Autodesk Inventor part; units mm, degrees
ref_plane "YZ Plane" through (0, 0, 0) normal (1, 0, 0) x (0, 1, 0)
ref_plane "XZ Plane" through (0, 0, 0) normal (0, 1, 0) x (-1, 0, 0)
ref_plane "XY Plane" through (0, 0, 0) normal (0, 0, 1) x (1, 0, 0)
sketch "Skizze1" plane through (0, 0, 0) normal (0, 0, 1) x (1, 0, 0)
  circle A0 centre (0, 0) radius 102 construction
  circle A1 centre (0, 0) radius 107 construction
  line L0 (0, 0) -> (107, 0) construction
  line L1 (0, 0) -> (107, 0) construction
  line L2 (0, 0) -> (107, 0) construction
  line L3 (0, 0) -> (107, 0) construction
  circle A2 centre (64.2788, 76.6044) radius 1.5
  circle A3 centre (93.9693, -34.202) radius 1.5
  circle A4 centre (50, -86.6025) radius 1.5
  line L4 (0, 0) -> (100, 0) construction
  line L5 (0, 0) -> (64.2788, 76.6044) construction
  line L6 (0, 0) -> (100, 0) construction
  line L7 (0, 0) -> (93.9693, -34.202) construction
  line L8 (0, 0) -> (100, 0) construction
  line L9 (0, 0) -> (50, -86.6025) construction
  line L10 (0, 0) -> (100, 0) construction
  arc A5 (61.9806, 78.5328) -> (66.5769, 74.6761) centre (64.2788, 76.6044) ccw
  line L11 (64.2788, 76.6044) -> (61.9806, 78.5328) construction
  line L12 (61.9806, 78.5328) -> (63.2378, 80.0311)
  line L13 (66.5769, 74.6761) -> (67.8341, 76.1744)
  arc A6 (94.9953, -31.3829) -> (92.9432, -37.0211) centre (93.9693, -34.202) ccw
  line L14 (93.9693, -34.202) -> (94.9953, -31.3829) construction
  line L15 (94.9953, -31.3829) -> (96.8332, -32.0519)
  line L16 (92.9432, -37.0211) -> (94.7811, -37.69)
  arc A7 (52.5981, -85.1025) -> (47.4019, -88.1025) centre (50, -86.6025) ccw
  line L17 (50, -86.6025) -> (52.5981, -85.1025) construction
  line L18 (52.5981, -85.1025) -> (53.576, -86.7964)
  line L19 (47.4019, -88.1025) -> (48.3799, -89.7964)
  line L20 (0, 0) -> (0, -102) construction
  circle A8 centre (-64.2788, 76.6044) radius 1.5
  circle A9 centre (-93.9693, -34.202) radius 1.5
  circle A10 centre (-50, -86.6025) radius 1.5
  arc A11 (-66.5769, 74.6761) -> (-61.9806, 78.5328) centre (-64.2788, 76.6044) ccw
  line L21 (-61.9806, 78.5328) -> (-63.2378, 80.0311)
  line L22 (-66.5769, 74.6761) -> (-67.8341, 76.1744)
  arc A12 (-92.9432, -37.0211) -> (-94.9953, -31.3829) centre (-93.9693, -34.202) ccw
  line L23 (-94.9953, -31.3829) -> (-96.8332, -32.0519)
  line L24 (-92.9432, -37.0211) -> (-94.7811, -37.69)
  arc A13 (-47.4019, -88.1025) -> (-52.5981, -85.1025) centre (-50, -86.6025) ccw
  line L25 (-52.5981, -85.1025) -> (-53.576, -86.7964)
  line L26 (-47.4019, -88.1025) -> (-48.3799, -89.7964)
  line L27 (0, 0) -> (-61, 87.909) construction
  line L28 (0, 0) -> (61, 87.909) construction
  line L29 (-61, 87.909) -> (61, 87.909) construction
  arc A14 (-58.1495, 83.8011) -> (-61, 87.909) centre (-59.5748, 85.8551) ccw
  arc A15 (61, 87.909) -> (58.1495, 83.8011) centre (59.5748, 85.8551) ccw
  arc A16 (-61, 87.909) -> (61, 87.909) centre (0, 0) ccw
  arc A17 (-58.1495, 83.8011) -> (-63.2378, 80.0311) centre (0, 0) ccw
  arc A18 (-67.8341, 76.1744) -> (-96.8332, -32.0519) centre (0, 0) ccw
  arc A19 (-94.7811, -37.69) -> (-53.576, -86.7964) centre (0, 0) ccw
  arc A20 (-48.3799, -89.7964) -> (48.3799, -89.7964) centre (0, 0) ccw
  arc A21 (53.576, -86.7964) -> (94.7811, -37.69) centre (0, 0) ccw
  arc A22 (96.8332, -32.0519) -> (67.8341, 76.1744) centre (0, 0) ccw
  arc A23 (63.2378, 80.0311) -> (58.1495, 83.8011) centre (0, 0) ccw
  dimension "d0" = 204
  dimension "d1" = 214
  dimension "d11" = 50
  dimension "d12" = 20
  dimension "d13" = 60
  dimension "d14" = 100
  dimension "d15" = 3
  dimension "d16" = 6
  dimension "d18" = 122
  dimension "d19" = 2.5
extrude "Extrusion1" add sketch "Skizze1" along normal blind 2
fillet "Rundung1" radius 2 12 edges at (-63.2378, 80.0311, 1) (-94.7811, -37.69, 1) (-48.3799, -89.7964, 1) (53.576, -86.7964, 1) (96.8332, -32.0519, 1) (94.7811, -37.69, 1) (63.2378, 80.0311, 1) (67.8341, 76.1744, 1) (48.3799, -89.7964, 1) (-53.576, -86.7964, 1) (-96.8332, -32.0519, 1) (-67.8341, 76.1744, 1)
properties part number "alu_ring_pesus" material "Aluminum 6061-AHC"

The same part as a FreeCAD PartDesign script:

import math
import FreeCAD as App
import Part
import Sketcher
Q = App.Units.Quantity


def edges_at(feature, points):
    """Names of the edges that pass closest to the given points."""
    edges = feature.Shape.Edges
    near = lambda p: min(range(len(edges)), key=lambda i: edges[i].distToShape(Part.Vertex(*p))[0])
    return sorted({f"Edge{near(p) + 1}" for p in points})

doc = App.newDocument("Part")
params = doc.addObject("Spreadsheet::Sheet", "Params")
for row, (alias, value) in enumerate([
    ("sketch1_diameter", "3 mm"),
    ("sketch1_radius", "3 mm"),
    ("sketch1_radius2", "102 mm"),
    ("sketch1_radius3", "107 mm"),
    ("sketch1_radius4", "2.5 mm"),
    ("pad1_length", "2 mm"),
    ("fillet_radius", "2 mm"),
], start=1):
    params.set(f"A{row}", alias)
    params.set(f"B{row}", "=" + value)
    params.setAlias(f"B{row}", alias)

body = doc.addObject("PartDesign::Body", "Body")

# Sketch on XY plane
sketch1 = body.newObject("Sketcher::SketchObject", "Sketch")
sketch1.AttachmentSupport = (doc.getObject("XY_Plane"), [""])
sketch1.MapMode = "FlatFace"
sketch1.addGeometry([
    Part.LineSegment(App.Vector(63.2, 80, 0), App.Vector(62, 78.5, 0)),  # 0
    Part.ArcOfCircle(Part.Circle(App.Vector(64.3, 76.6, 0), App.Vector(0, 0, 1), 3), math.radians(140), math.radians(320)),  # 1
    Part.LineSegment(App.Vector(66.6, 74.7, 0), App.Vector(67.8, 76.2, 0)),  # 2
    Part.ArcOfCircle(Part.Circle(App.Vector(0, 0, 0), App.Vector(0, 0, 1), 102), math.radians(-18), math.radians(48)),  # 3
    Part.LineSegment(App.Vector(96.8, -32.1, 0), App.Vector(95, -31.4, 0)),  # 4
    Part.ArcOfCircle(Part.Circle(App.Vector(94, -34.2, 0), App.Vector(0, 0, 1), 3), math.radians(70), math.radians(250)),  # 5
    Part.LineSegment(App.Vector(92.9, -37, 0), App.Vector(94.8, -37.7, 0)),  # 6
    Part.ArcOfCircle(Part.Circle(App.Vector(0, 0, 0), App.Vector(0, 0, 1), 102), math.radians(-58), math.radians(-22)),  # 7
    Part.LineSegment(App.Vector(53.6, -86.8, 0), App.Vector(52.6, -85.1, 0)),  # 8
    Part.ArcOfCircle(Part.Circle(App.Vector(50, -86.6, 0), App.Vector(0, 0, 1), 3), math.radians(30), math.radians(210)),  # 9
    Part.LineSegment(App.Vector(47.4, -88.1, 0), App.Vector(48.4, -89.8, 0)),  # 10
    Part.ArcOfCircle(Part.Circle(App.Vector(0, 0, 0), App.Vector(0, 0, 1), 102), math.radians(-118), math.radians(-62)),  # 11
    Part.LineSegment(App.Vector(-48.4, -89.8, 0), App.Vector(-47.4, -88.1, 0)),  # 12
    Part.ArcOfCircle(Part.Circle(App.Vector(-50, -86.6, 0), App.Vector(0, 0, 1), 3), math.radians(-30), math.radians(150)),  # 13
    Part.LineSegment(App.Vector(-52.6, -85.1, 0), App.Vector(-53.6, -86.8, 0)),  # 14
    Part.ArcOfCircle(Part.Circle(App.Vector(0, 0, 0), App.Vector(0, 0, 1), 102), math.radians(-158), math.radians(-122)),  # 15
    Part.LineSegment(App.Vector(-94.8, -37.7, 0), App.Vector(-92.9, -37, 0)),  # 16
    Part.ArcOfCircle(Part.Circle(App.Vector(-94, -34.2, 0), App.Vector(0, 0, 1), 3), math.radians(-70), math.radians(110)),  # 17
    Part.LineSegment(App.Vector(-95, -31.4, 0), App.Vector(-96.8, -32.1, 0)),  # 18
    Part.ArcOfCircle(Part.Circle(App.Vector(0, 0, 0), App.Vector(0, 0, 1), 102), math.radians(132), math.radians(198)),  # 19
    Part.LineSegment(App.Vector(-67.8, 76.2, 0), App.Vector(-66.6, 74.7, 0)),  # 20
    Part.ArcOfCircle(Part.Circle(App.Vector(-64.3, 76.6, 0), App.Vector(0, 0, 1), 3), math.radians(-140), math.radians(40)),  # 21
    Part.LineSegment(App.Vector(-62, 78.5, 0), App.Vector(-63.2, 80, 0)),  # 22
    Part.ArcOfCircle(Part.Circle(App.Vector(0, 0, 0), App.Vector(0, 0, 1), 102), math.radians(124.76), math.radians(128.31)),  # 23
    Part.ArcOfCircle(Part.Circle(App.Vector(-59.6, 85.9, 0), App.Vector(0, 0, 1), 2.5), math.radians(-55), math.radians(125)),  # 24
    Part.ArcOfCircle(Part.Circle(App.Vector(0, 0, 0), App.Vector(0, 0, 1), 107), math.radians(125), math.radians(415)),  # 25
    Part.ArcOfCircle(Part.Circle(App.Vector(59.6, 85.9, 0), App.Vector(0, 0, 1), 2.5), math.radians(55), math.radians(235)),  # 26
    Part.ArcOfCircle(Part.Circle(App.Vector(0, 0, 0), App.Vector(0, 0, 1), 102), math.radians(51.69), math.radians(55.24)),  # 27
    Part.Circle(App.Vector(-50, -86.6, 0), App.Vector(0, 0, 1), 1.5),  # 28
    Part.Circle(App.Vector(-94, -34.2, 0), App.Vector(0, 0, 1), 1.5),  # 29
    Part.Circle(App.Vector(50, -86.6, 0), App.Vector(0, 0, 1), 1.5),  # 30
    Part.Circle(App.Vector(94, -34.2, 0), App.Vector(0, 0, 1), 1.5),  # 31
    Part.Circle(App.Vector(-64.3, 76.6, 0), App.Vector(0, 0, 1), 1.5),  # 32
    Part.Circle(App.Vector(64.3, 76.6, 0), App.Vector(0, 0, 1), 1.5),  # 33
], False)
sketch1.addConstraint([
    Sketcher.Constraint("Tangent", 0, 2, 1, 1),
    Sketcher.Constraint("Tangent", 1, 2, 2, 1),
    Sketcher.Constraint("Coincident", 2, 2, 3, 2),
    Sketcher.Constraint("Coincident", 3, 1, 4, 1),
    Sketcher.Constraint("Tangent", 4, 2, 5, 1),
    Sketcher.Constraint("Tangent", 5, 2, 6, 1),
    Sketcher.Constraint("Coincident", 6, 2, 7, 2),
    Sketcher.Constraint("Coincident", 7, 1, 8, 1),
    Sketcher.Constraint("Tangent", 8, 2, 9, 1),
    Sketcher.Constraint("Tangent", 9, 2, 10, 1),
    Sketcher.Constraint("Coincident", 10, 2, 11, 2),
    Sketcher.Constraint("Coincident", 11, 1, 12, 1),
    Sketcher.Constraint("Tangent", 12, 2, 13, 1),
    Sketcher.Constraint("Tangent", 13, 2, 14, 1),
    Sketcher.Constraint("Coincident", 14, 2, 15, 2),
    Sketcher.Constraint("Coincident", 15, 1, 16, 1),
    Sketcher.Constraint("Tangent", 16, 2, 17, 1),
    Sketcher.Constraint("Tangent", 17, 2, 18, 1),
    Sketcher.Constraint("Coincident", 18, 2, 19, 2),
    Sketcher.Constraint("Coincident", 19, 1, 20, 1),
    Sketcher.Constraint("Tangent", 20, 2, 21, 1),
    Sketcher.Constraint("Tangent", 21, 2, 22, 1),
    Sketcher.Constraint("Coincident", 22, 2, 23, 2),
    Sketcher.Constraint("Tangent", 23, 1, 24, 1),
    Sketcher.Constraint("Tangent", 24, 2, 25, 1),
    Sketcher.Constraint("Tangent", 25, 2, 26, 1),
    Sketcher.Constraint("Tangent", 26, 2, 27, 2),
    Sketcher.Constraint("Coincident", 27, 1, 0, 1),
    Sketcher.Constraint("Coincident", 3, 3, -1, 1),
    Sketcher.Constraint("Coincident", 7, 3, -1, 1),
    Sketcher.Constraint("Coincident", 11, 3, -1, 1),
    Sketcher.Constraint("Coincident", 15, 3, -1, 1),
    Sketcher.Constraint("Coincident", 19, 3, -1, 1),
    Sketcher.Constraint("Coincident", 25, 3, -1, 1),
    Sketcher.Constraint("Coincident", 28, 3, 13, 3),
    Sketcher.Constraint("Coincident", 29, 3, 17, 3),
    Sketcher.Constraint("Coincident", 30, 3, 9, 3),
    Sketcher.Constraint("Coincident", 31, 3, 5, 3),
    Sketcher.Constraint("Coincident", 32, 3, 21, 3),
    Sketcher.Constraint("Coincident", 33, 3, 1, 3),
    Sketcher.Constraint("Equal", 1, 5),
    Sketcher.Constraint("Equal", 3, 7),
    Sketcher.Constraint("Equal", 5, 9),
    Sketcher.Constraint("Equal", 7, 11),
    Sketcher.Constraint("Equal", 9, 13),
    Sketcher.Constraint("Equal", 11, 15),
    Sketcher.Constraint("Equal", 13, 17),
    Sketcher.Constraint("Equal", 15, 19),
    Sketcher.Constraint("Equal", 17, 21),
    Sketcher.Constraint("Equal", 24, 26),
    Sketcher.Constraint("Equal", 28, 29),
    Sketcher.Constraint("Equal", 29, 30),
    Sketcher.Constraint("Equal", 30, 31),
    Sketcher.Constraint("Equal", 31, 32),
    Sketcher.Constraint("Equal", 32, 33),
    Sketcher.Constraint("Symmetric", 9, 3, 13, 3, -2),
    Sketcher.Constraint("Symmetric", 5, 3, 17, 3, -2),
    Sketcher.Constraint("Symmetric", 1, 3, 21, 3, -2),
    Sketcher.Constraint("Parallel", 0, 2),
    Sketcher.Constraint("Parallel", 4, 6),
    Sketcher.Constraint("Parallel", 8, 10),
    Sketcher.Constraint("Parallel", 12, 14),
    Sketcher.Constraint("Parallel", 16, 18),
    Sketcher.Constraint("Parallel", 20, 22),
    Sketcher.Constraint("Horizontal", 24, 3, 26, 3),
    Sketcher.Constraint("Horizontal", 10, 2, 11, 1),
    Sketcher.Constraint("Horizontal", 6, 2, 15, 1),
    Sketcher.Constraint("Horizontal", 2, 2, 19, 1),
    Sketcher.Constraint("Equal", 0, 2),
    Sketcher.Constraint("Equal", 2, 4),
    Sketcher.Constraint("Equal", 4, 6),
    Sketcher.Constraint("Equal", 6, 8),
    Sketcher.Constraint("Equal", 8, 10),
    Sketcher.Constraint("Equal", 20, 22),
    Sketcher.Constraint("Diameter", 28, 3.0),
    Sketcher.Constraint("Radius", 1, 3.0),
    Sketcher.Constraint("Radius", 3, 102.0),
    Sketcher.Constraint("Radius", 25, 107.0),
    Sketcher.Constraint("Radius", 24, 2.5),
    Sketcher.Constraint("Angle", 2, Q("50.0005 deg")),
    Sketcher.Constraint("DistanceX", -1, 1, 9, 3, 50.0),
    Sketcher.Constraint("Angle", 6, Q("-19.9989 deg")),
    Sketcher.Constraint("DistanceX", 24, 2, -1, 1, 61.0),
    Sketcher.Constraint("Radius", 23, 102.0386),
    Sketcher.Constraint("Radius", 27, 101.9613),
    Sketcher.Constraint("DistanceY", 9, 3, 8, 2, 1.5),
    Sketcher.Constraint("DistanceY", 22, 2, 23, 1, 3.77),
])
sketch1.setExpression("Constraints[74]", "Params.sketch1_diameter")
sketch1.setExpression("Constraints[75]", "Params.sketch1_radius")
sketch1.setExpression("Constraints[76]", "Params.sketch1_radius2")
sketch1.setExpression("Constraints[77]", "Params.sketch1_radius3")
sketch1.setExpression("Constraints[78]", "Params.sketch1_radius4")
pad1 = body.newObject("PartDesign::Pad", "Pad")
pad1.Profile = sketch1
pad1.setExpression("Length", "Params.pad1_length")
doc.recompute()

fillet = body.newObject("PartDesign::Fillet", "Fillet")
fillet.Base = (pad1, edges_at(pad1, [
    (-63.238, 80.031, 1),
    (-94.781, -37.69, 1),
    (-48.38, -89.796, 1),
    (53.576, -86.796, 1),
    (96.833, -32.052, 1),
    (94.781, -37.69, 1),
    (63.238, 80.031, 1),
    (67.834, 76.174, 1),
    (48.38, -89.796, 1),
    (-53.576, -86.796, 1),
    (-96.833, -32.052, 1),
    (-67.834, 76.174, 1),
]))
fillet.setExpression("Radius", "Params.fillet_radius")

doc.recompute()
